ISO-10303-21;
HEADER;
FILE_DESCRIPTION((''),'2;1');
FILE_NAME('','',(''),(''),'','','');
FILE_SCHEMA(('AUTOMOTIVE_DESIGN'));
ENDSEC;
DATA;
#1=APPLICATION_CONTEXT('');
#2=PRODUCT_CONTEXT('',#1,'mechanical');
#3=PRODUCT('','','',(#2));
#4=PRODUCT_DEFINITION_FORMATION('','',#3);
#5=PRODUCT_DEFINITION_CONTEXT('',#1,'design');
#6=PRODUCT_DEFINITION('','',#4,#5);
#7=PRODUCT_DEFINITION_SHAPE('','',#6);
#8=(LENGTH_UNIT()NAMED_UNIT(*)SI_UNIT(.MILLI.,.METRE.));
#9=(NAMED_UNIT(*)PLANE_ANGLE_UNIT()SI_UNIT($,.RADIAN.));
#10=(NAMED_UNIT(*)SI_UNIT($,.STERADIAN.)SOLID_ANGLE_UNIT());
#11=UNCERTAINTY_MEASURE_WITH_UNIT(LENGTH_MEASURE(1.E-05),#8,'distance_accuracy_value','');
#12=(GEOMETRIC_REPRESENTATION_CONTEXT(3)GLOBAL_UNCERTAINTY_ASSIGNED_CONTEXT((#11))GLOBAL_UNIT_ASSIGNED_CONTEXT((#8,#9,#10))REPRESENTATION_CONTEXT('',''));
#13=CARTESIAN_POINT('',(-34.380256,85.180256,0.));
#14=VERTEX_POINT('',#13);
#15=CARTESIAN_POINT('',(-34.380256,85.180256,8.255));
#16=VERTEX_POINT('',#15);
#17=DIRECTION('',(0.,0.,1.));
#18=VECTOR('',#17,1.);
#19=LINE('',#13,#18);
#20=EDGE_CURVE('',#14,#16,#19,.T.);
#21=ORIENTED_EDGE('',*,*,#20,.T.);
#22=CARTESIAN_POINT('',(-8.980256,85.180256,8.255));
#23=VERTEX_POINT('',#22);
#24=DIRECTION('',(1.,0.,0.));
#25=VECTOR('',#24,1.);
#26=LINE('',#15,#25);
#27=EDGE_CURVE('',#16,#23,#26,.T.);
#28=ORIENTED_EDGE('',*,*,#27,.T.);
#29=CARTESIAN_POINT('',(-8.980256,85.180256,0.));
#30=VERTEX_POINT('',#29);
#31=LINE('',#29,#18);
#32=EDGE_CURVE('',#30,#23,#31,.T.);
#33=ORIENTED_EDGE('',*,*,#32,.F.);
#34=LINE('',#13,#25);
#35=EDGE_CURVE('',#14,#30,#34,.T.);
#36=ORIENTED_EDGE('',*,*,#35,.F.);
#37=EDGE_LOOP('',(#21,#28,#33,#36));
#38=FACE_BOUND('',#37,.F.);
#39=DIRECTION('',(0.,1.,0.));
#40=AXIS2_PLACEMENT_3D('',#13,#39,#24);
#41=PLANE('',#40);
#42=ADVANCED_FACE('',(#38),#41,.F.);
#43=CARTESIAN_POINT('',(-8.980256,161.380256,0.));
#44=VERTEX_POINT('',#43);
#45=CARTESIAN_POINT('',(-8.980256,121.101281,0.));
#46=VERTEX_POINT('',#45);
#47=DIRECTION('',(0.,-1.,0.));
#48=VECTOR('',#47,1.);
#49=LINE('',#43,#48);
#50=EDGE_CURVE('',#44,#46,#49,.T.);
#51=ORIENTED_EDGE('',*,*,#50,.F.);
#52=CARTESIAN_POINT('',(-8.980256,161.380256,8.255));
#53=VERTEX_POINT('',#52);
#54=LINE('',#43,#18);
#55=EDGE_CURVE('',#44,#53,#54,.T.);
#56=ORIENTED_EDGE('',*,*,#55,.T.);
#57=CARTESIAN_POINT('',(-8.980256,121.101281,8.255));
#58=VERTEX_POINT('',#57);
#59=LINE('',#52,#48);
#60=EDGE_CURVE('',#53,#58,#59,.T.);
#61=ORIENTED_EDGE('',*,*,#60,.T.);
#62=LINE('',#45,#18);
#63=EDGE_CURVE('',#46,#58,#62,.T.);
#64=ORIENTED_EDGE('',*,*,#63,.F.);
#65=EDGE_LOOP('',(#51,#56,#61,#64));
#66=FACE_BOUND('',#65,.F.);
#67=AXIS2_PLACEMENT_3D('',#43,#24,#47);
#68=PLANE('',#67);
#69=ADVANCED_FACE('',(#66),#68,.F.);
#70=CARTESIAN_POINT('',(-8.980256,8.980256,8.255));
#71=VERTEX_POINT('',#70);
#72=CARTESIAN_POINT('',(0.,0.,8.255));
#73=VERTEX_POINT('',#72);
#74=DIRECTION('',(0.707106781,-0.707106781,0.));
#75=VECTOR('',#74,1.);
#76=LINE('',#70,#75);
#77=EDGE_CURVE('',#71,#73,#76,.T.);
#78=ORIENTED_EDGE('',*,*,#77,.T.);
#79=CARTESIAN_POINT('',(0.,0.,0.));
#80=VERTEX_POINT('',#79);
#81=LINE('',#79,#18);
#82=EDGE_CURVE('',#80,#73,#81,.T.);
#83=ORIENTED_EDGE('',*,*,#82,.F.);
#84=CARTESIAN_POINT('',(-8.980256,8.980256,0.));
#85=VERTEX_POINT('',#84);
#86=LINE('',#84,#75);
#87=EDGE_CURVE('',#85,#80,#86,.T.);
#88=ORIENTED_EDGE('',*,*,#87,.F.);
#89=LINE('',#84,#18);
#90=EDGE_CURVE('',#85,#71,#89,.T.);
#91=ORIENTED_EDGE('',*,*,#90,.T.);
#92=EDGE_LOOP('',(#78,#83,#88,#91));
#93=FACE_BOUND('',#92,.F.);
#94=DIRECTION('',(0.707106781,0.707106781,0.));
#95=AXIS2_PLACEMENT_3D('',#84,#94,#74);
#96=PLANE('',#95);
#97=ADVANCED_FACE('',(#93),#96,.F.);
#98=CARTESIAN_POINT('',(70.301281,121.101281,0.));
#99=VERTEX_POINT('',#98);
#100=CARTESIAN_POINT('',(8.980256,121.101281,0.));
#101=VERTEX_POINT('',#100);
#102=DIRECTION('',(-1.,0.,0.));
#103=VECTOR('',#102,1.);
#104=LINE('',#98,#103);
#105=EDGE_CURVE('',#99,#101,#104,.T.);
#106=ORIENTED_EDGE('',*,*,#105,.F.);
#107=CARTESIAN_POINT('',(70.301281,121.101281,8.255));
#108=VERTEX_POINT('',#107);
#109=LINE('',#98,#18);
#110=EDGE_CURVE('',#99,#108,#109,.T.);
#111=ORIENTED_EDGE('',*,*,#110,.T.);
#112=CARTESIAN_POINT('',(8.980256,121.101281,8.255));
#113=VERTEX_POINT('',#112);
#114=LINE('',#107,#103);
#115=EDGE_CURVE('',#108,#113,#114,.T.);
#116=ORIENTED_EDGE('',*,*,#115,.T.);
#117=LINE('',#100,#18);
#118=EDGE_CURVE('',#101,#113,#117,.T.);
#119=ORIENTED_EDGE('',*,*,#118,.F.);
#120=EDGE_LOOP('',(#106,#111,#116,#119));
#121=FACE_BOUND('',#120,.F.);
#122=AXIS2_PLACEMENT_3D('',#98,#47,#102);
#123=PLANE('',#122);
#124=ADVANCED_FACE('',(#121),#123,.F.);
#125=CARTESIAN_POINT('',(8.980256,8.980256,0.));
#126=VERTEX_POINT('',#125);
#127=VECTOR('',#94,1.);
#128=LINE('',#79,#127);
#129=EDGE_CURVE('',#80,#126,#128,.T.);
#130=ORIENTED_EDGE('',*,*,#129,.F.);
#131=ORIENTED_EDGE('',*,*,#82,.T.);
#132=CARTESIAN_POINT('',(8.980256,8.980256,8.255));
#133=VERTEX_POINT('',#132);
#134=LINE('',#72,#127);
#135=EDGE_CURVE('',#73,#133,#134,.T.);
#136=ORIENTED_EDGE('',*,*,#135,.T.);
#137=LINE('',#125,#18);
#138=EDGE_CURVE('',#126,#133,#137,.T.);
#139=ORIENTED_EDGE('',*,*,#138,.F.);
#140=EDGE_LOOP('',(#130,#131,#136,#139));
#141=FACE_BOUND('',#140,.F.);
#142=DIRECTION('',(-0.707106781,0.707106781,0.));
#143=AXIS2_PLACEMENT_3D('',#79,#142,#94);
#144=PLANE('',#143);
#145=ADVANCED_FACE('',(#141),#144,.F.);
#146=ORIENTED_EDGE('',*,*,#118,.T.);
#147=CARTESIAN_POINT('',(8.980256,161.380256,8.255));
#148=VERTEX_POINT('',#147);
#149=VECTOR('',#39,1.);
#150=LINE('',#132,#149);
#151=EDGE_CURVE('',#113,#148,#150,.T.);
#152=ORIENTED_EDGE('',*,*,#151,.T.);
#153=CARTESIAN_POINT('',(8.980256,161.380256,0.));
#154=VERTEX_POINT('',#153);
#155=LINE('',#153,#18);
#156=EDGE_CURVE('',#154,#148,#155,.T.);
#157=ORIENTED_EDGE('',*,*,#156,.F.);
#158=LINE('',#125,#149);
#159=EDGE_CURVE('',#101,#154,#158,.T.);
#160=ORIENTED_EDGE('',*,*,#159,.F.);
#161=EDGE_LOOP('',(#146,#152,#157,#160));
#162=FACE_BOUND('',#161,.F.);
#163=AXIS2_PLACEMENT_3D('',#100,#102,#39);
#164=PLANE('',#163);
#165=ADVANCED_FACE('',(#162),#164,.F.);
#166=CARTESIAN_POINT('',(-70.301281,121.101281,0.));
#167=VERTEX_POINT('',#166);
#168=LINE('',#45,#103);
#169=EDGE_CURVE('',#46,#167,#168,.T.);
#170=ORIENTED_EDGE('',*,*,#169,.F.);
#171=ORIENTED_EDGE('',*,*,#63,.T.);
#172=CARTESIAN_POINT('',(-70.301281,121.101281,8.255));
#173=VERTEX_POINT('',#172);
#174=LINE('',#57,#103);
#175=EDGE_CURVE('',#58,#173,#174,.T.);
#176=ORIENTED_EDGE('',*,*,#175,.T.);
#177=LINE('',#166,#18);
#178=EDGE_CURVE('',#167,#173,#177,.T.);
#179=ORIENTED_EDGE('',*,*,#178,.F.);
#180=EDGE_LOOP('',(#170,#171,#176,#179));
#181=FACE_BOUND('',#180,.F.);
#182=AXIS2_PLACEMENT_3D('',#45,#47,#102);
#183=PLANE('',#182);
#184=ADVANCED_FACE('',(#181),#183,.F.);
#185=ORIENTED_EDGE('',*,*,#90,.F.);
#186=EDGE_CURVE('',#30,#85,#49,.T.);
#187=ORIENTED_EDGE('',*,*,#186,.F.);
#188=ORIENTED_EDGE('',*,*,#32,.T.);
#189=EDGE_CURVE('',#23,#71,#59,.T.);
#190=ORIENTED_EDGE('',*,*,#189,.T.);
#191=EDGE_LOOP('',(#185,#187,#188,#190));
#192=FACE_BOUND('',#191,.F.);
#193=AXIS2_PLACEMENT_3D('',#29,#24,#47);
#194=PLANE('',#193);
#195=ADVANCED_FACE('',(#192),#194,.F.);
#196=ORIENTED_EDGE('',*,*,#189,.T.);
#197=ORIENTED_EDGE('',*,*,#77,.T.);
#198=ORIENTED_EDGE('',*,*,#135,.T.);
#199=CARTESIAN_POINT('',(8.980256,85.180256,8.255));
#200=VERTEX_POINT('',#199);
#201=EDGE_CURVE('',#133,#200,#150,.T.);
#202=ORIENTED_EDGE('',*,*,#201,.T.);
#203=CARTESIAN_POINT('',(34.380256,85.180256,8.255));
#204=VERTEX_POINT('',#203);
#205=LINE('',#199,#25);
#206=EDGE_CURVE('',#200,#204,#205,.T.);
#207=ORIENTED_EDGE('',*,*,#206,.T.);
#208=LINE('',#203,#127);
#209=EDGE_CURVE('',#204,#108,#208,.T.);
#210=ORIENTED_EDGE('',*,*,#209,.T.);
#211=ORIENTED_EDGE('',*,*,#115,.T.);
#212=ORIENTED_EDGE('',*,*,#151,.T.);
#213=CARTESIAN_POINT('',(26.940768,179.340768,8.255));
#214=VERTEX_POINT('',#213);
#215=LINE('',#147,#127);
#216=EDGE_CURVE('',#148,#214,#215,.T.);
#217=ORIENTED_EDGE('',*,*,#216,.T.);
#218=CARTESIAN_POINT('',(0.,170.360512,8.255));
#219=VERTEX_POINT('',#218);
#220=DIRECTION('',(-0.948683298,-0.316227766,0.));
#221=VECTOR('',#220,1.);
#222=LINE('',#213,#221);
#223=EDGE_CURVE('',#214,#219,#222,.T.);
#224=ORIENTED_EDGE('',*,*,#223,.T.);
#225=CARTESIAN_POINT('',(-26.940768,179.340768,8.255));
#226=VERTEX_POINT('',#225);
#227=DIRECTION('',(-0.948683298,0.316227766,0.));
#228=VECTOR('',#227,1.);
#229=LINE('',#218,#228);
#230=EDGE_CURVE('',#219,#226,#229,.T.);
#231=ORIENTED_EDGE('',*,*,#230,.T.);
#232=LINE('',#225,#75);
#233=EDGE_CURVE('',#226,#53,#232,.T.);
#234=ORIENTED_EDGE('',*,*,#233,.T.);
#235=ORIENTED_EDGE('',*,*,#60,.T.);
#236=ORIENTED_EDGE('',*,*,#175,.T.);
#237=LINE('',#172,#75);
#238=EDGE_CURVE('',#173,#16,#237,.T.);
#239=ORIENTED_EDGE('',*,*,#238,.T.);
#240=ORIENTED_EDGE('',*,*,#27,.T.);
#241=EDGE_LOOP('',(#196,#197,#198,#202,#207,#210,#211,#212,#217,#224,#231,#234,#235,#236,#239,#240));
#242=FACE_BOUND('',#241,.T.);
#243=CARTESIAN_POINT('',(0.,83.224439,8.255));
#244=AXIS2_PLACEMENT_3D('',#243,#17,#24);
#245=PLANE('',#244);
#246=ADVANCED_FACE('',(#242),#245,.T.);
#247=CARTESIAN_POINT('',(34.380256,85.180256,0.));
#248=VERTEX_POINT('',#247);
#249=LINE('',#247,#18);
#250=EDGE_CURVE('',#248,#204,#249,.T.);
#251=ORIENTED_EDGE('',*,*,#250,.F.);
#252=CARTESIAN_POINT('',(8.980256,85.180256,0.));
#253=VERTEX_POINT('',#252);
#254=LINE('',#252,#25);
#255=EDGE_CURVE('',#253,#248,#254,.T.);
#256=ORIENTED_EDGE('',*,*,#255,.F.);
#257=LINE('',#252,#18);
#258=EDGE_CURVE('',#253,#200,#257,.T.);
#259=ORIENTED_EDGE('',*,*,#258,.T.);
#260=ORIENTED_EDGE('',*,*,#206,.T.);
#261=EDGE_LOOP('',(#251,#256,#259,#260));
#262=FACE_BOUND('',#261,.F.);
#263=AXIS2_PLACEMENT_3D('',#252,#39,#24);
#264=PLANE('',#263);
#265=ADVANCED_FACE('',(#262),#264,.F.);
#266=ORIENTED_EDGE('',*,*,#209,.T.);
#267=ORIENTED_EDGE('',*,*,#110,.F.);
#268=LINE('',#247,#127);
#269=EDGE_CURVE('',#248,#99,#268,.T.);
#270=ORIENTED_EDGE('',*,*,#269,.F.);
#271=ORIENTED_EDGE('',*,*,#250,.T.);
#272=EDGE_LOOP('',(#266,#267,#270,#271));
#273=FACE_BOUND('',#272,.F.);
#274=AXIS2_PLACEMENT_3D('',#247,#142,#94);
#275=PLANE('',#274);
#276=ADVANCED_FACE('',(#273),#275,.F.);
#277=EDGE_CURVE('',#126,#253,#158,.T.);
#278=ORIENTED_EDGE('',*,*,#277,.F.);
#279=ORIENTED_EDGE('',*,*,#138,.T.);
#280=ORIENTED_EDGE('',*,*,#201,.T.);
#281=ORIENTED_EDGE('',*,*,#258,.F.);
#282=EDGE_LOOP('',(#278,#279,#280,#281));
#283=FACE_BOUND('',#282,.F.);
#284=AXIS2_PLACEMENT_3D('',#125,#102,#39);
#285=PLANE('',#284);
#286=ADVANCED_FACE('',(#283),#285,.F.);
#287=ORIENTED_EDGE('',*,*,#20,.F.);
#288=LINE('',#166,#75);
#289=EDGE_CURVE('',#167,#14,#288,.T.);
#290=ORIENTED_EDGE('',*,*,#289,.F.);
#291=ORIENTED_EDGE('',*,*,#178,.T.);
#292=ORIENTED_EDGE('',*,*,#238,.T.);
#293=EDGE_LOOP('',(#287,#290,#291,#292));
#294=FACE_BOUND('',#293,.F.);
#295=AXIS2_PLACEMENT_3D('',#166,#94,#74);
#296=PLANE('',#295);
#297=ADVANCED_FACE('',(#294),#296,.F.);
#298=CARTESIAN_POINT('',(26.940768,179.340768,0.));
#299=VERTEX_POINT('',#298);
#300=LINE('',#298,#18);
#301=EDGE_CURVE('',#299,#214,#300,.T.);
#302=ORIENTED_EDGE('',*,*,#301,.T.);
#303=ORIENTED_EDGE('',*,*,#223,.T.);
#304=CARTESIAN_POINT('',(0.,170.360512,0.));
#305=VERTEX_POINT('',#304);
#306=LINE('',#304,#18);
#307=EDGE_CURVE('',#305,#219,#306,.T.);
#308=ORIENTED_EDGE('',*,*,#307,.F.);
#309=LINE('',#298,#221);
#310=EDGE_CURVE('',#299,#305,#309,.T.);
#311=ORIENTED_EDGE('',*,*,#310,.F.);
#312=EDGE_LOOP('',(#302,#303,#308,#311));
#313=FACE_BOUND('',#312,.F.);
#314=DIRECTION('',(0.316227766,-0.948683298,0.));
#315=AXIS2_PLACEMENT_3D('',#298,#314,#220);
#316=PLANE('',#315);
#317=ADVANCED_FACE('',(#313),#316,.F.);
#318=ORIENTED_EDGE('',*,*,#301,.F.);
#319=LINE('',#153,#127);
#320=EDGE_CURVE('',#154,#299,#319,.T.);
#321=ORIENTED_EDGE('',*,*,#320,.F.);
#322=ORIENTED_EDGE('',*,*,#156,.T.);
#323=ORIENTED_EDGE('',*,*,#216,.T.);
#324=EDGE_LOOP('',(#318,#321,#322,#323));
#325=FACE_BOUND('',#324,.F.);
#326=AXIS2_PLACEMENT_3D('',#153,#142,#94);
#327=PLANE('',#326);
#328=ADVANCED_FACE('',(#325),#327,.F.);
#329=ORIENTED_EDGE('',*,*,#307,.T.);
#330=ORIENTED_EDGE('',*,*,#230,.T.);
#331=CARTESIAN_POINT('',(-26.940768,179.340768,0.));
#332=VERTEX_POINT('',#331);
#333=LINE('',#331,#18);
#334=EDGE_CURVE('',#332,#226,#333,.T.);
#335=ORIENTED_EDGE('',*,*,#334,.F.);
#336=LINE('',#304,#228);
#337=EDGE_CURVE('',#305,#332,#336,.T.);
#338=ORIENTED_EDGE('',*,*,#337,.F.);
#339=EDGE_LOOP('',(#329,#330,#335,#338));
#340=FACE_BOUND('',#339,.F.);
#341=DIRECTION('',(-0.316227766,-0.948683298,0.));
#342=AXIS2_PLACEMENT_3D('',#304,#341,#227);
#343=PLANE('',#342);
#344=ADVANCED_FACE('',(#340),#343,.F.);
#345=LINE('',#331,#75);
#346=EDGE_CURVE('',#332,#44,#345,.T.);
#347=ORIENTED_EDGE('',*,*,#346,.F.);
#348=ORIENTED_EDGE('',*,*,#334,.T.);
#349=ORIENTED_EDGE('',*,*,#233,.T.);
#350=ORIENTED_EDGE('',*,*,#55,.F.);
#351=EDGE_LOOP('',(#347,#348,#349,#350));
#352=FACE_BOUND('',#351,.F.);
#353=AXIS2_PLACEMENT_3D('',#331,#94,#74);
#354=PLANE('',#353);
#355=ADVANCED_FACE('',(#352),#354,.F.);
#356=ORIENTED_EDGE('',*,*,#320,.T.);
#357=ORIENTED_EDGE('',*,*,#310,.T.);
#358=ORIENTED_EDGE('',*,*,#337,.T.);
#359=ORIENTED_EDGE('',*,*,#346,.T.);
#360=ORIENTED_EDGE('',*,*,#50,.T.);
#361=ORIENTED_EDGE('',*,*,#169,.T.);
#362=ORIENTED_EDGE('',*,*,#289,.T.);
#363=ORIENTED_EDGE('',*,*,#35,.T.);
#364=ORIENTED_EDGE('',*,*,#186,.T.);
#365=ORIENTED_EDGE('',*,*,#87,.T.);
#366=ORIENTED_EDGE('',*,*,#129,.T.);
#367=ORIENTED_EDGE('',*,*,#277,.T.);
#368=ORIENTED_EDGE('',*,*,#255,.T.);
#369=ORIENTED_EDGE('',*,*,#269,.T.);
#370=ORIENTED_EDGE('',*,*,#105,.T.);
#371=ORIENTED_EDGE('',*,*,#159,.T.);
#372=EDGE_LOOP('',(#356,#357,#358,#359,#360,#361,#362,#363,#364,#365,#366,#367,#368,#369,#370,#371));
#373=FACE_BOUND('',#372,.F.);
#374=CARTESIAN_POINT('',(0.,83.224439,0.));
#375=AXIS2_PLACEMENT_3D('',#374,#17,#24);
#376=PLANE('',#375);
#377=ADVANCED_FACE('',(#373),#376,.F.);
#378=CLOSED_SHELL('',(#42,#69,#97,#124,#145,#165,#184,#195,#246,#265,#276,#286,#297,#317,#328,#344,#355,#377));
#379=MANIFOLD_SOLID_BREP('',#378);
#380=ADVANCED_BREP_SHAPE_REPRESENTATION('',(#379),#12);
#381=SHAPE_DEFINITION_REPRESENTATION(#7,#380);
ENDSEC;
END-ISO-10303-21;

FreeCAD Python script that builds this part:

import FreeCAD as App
import Part
import Sketcher

V = App.Vector
Q = App.Units.Quantity


def add_polygon(sketch, points):
    """Adds a closed chain of lines whose ends are joined by coincident constraints."""
    first, n = sketch.GeometryCount, len(points)
    for a, b in zip(points, points[1:] + points[:1]):
        sketch.addGeometry(Part.LineSegment(App.Vector(*a, 0), App.Vector(*b, 0)), False)
    for i in range(n):
        sketch.addConstraint(Sketcher.Constraint("Coincident", first + i, 2, first + (i + 1) % n, 1))

doc = App.newDocument("Part")
body = doc.addObject("PartDesign::Body", "Body")

sketch1 = body.newObject("Sketcher::SketchObject", "Sketch")
sketch1.AttachmentSupport = (doc.getObject("XY_Plane"), [""])
sketch1.MapMode = "FlatFace"
add_polygon(sketch1, [(-9, 9), (0, 0), (9, 9), (9, 85), (34, 85), (70, 121), (9, 121), (9, 161), (27, 179), (0, 170), (-27, 179), (-9, 161), (-9, 121), (-70, 121), (-34, 85), (-9, 85)])
sketch1.addConstraint([
    Sketcher.Constraint("Vertical", 2),
    Sketcher.Constraint("Horizontal", 3),
    Sketcher.Constraint("Horizontal", 5),
    Sketcher.Constraint("Vertical", 6),
    Sketcher.Constraint("Vertical", 11),
    Sketcher.Constraint("Horizontal", 12),
    Sketcher.Constraint("Horizontal", 14),
    Sketcher.Constraint("Vertical", 15),
    Sketcher.Constraint("Coincident", 0, 2, -1, 1),
    Sketcher.Constraint("Symmetric", 7, 2, 9, 2, -2),
    Sketcher.Constraint("Symmetric", 6, 2, 10, 2, -2),
    Sketcher.Constraint("Symmetric", 4, 2, 12, 2, -2),
    Sketcher.Constraint("Symmetric", 3, 2, 13, 2, -2),
    Sketcher.Constraint("Symmetric", 1, 2, 15, 2, -2),
    Sketcher.Constraint("PointOnObject", 8, 2, -2),
    Sketcher.Constraint("Perpendicular", 0, 1),
    Sketcher.Constraint("Parallel", 1, 4),
    Sketcher.Constraint("Parallel", 4, 7),
    Sketcher.Constraint("Vertical", 2, 2, 5, 2),
    Sketcher.Constraint("DistanceX", 3, 1, 3, 2, Q("1 in")),
    Sketcher.Constraint("DistanceY", 2, 1, 2, 2, Q("3 in")),
    Sketcher.Constraint("Distance", 4, Q("2 in")),
    Sketcher.Constraint("Distance", 7, Q("1 in")),
    Sketcher.Constraint("DistanceY", 2, 2, 6, 2, Q("3 in")),
    Sketcher.Constraint("Distance", 0, Q("0.5 in")),
    Sketcher.Constraint("DistanceY", -1, 1, 8, 2, 170.360512),
])
pad1 = body.newObject("PartDesign::Pad", "Pad")
pad1.Profile = sketch1
pad1.Length = Q("0.325 in")

doc.recompute()
